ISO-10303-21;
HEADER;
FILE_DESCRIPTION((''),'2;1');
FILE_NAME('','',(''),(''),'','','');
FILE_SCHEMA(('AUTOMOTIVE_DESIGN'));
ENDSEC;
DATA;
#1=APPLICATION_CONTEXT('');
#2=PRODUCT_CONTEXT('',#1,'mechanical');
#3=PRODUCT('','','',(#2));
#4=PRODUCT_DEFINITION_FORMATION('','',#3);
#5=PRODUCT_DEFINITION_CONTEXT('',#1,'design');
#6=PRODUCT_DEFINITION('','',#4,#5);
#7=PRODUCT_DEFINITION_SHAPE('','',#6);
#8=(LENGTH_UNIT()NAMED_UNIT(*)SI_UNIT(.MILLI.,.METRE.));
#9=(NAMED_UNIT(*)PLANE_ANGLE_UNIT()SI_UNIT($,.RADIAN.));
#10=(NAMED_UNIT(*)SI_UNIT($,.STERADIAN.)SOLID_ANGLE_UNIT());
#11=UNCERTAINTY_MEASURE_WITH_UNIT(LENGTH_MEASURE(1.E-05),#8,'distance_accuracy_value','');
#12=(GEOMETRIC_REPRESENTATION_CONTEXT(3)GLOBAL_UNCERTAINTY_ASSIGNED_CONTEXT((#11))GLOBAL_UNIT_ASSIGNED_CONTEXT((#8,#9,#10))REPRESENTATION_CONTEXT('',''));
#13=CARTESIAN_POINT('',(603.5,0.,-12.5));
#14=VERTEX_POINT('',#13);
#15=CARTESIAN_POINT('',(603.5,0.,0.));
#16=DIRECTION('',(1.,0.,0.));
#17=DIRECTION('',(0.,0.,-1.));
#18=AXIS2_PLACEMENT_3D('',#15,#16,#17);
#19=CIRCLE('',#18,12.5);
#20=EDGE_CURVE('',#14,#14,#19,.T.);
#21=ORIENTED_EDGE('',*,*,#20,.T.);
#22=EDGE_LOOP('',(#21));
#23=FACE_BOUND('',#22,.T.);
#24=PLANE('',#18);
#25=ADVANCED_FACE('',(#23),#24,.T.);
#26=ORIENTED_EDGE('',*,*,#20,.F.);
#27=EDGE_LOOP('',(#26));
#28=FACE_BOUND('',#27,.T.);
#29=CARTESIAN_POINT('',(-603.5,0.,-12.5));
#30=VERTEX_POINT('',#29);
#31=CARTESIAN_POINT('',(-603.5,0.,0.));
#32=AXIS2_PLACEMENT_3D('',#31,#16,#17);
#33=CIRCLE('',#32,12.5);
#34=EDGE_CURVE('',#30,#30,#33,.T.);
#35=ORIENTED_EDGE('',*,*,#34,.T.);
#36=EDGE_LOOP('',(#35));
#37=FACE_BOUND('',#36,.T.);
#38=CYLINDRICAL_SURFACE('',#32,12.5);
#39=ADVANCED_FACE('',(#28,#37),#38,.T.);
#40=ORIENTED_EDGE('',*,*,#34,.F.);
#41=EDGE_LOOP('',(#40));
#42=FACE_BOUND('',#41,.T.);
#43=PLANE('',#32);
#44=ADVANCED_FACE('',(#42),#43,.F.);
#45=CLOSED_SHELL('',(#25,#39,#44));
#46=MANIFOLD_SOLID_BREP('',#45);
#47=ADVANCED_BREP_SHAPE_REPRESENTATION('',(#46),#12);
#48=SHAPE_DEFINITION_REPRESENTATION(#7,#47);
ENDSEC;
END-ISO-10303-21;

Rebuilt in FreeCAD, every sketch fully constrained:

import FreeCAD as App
import Part
import Sketcher

doc = App.newDocument("Part")
body = doc.addObject("PartDesign::Body", "Body")

# Sketch on YZ plane
sketch1 = body.newObject("Sketcher::SketchObject", "Sketch")
sketch1.AttachmentSupport = (doc.getObject("YZ_Plane"), [""])
sketch1.MapMode = "FlatFace"
sketch1.addGeometry(Part.Circle(App.Vector(0, 0, 0), App.Vector(0, 0, 1), 12), False)
sketch1.addConstraint([
    Sketcher.Constraint("Coincident", 0, 3, -1, 1),
    Sketcher.Constraint("Diameter", 0, 25.0),
])
pad1 = body.newObject("PartDesign::Pad", "Pad")
pad1.Profile = sketch1
pad1.Type = "TwoLengths"
pad1.Length = 603.5
pad1.Length2 = 603.5

doc.recompute()
